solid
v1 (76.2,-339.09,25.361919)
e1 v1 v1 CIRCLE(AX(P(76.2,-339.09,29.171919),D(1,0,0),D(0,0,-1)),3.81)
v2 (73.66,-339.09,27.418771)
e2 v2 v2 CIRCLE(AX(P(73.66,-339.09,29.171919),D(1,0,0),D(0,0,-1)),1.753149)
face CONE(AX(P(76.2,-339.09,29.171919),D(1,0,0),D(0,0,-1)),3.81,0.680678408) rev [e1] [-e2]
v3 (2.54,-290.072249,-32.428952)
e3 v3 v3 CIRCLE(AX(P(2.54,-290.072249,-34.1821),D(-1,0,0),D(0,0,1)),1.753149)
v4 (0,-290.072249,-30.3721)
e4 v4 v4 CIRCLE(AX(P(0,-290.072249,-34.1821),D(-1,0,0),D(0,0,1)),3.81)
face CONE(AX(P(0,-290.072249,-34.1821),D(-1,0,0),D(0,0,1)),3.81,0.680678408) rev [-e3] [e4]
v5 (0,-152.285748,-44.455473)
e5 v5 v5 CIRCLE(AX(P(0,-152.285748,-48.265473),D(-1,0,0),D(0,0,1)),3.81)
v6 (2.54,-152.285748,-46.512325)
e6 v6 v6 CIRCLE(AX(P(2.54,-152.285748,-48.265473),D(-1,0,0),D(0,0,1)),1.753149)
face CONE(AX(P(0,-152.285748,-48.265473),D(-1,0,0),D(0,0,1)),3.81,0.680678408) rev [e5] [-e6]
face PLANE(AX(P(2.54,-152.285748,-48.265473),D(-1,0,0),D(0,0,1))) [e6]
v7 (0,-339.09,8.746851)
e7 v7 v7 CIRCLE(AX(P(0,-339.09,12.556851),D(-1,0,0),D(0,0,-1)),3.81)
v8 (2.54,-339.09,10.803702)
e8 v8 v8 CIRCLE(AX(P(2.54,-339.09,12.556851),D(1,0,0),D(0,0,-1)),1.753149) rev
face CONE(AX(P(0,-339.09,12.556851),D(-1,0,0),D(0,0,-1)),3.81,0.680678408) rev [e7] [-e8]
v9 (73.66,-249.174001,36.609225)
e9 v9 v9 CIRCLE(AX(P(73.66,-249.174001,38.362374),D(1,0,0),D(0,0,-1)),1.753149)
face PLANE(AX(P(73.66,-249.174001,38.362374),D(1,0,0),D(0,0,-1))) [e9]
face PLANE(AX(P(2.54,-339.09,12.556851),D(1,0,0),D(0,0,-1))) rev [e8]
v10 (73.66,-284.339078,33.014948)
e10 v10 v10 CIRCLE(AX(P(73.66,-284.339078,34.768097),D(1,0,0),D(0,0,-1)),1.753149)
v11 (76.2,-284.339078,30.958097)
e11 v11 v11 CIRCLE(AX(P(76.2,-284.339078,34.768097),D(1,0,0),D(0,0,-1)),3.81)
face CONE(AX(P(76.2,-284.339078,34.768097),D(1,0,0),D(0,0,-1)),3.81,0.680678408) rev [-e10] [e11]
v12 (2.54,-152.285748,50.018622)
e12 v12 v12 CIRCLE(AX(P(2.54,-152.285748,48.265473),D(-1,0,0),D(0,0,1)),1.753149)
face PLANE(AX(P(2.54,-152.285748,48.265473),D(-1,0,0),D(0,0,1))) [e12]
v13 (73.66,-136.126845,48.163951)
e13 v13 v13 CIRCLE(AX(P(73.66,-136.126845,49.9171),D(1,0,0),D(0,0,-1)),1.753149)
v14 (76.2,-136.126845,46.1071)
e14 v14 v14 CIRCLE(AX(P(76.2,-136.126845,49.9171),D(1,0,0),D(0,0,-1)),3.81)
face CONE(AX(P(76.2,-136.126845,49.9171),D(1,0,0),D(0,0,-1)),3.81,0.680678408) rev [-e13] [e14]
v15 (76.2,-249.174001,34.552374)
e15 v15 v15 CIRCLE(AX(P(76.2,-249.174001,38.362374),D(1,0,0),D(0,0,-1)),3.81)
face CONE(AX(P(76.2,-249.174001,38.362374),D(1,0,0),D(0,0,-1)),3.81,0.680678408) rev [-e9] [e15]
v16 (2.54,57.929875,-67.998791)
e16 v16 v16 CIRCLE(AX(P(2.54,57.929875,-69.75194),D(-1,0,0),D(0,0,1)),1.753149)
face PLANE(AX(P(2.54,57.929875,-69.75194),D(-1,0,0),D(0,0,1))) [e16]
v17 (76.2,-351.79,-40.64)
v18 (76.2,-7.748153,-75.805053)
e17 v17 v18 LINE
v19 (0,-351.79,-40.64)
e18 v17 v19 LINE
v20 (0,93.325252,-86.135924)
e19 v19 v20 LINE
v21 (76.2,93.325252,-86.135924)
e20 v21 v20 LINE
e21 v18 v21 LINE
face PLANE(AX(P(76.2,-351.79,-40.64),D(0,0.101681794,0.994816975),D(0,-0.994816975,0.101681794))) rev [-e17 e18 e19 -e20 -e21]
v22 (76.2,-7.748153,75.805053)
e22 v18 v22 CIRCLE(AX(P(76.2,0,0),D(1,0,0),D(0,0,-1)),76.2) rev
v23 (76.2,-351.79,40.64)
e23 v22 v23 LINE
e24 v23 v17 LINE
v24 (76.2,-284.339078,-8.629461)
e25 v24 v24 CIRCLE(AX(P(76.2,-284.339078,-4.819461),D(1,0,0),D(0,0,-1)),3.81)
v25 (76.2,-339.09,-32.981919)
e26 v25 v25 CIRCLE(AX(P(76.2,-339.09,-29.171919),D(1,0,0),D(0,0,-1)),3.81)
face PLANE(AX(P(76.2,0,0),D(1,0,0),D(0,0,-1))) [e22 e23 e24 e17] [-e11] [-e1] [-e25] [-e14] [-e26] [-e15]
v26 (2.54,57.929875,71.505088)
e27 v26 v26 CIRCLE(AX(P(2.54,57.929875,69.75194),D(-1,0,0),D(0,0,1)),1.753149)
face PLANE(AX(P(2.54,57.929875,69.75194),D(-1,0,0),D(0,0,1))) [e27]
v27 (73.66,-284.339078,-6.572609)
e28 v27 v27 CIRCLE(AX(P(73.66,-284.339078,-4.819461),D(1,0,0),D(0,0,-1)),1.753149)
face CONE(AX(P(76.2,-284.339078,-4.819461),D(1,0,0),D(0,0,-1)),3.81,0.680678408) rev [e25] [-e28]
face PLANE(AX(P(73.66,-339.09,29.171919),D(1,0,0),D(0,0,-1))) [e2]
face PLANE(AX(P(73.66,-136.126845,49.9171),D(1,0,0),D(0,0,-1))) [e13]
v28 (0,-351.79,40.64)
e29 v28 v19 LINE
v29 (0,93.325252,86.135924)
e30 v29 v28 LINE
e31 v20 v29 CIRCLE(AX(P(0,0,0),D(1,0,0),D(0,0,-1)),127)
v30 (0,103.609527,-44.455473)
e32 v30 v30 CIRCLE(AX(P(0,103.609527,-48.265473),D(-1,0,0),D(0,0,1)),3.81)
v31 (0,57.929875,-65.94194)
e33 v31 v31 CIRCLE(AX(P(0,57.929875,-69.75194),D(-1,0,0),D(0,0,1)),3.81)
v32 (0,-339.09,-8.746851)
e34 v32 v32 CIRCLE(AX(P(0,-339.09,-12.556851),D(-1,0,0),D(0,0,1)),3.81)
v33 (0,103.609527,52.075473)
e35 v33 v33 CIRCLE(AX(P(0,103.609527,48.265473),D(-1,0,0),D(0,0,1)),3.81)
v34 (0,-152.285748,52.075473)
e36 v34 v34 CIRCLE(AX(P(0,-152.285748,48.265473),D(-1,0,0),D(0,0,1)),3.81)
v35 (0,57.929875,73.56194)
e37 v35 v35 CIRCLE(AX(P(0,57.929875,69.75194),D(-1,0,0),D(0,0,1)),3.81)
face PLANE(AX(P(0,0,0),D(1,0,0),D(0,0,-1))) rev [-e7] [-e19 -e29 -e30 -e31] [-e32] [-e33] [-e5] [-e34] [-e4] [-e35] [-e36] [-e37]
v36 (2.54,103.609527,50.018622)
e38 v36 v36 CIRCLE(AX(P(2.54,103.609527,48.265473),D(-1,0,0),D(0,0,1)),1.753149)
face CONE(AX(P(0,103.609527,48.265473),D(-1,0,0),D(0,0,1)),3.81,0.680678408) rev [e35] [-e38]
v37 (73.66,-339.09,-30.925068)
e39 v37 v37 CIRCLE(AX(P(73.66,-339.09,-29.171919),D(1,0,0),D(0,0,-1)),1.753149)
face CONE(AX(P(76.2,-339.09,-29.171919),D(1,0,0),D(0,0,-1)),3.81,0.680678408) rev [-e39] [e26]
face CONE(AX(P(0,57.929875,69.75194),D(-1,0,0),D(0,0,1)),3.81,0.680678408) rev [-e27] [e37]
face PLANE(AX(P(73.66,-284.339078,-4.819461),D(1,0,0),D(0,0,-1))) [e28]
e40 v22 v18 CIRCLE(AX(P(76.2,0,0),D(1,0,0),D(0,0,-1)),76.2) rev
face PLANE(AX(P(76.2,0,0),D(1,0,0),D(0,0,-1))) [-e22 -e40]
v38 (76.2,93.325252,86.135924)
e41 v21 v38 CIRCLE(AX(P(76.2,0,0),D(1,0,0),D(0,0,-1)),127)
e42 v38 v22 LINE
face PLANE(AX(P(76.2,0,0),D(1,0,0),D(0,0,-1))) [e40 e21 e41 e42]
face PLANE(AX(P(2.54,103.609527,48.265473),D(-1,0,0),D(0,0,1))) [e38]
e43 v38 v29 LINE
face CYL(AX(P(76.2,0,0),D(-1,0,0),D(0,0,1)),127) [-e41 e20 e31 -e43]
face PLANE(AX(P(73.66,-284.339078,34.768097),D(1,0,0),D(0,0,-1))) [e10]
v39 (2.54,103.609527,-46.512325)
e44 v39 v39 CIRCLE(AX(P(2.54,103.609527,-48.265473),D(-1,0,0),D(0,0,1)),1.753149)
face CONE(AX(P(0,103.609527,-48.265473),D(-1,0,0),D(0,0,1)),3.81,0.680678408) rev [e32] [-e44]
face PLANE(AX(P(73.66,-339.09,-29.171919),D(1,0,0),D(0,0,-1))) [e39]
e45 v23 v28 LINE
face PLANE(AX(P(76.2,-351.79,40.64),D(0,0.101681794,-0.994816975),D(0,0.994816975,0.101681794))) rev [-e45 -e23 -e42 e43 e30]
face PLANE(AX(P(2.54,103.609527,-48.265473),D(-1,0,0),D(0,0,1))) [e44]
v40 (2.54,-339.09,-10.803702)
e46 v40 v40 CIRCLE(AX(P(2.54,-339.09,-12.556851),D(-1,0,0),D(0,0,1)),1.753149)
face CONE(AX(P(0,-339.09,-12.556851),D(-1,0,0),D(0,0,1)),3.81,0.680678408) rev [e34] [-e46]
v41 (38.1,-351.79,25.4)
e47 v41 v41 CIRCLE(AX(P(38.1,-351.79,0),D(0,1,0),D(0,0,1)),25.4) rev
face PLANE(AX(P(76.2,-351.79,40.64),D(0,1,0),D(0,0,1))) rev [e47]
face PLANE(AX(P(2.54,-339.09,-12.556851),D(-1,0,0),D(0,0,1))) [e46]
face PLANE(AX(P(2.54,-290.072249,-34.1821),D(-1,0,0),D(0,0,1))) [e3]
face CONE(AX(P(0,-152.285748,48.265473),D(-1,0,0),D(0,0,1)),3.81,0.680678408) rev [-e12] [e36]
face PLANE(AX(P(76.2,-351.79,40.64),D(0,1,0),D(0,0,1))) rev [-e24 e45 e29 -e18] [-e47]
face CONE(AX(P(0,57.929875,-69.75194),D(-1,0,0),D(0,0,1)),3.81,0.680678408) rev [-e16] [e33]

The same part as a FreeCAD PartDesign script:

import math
import FreeCAD as App
import Part
import Sketcher
from FreeCAD import Vector
Q = App.Units.Quantity

doc = App.newDocument("Part")
body = doc.addObject("PartDesign::Body", "Body")

sketch1 = body.newObject("Sketcher::SketchObject", "Sketch")
sketch1.AttachmentSupport = (doc.getObject("YZ_Plane"), [""])
sketch1.MapMode = "FlatFace"
sketch1.addGeometry([
    Part.LineSegment(Vector(93, 86, 0), Vector(-352, 41, 0)),
    Part.LineSegment(Vector(-352, 41, 0), Vector(-352, -41, 0)),
    Part.LineSegment(Vector(-352, -41, 0), Vector(93, -86, 0)),
    Part.ArcOfCircle(Part.Circle(Vector(0, 0, 0), Vector(0, 0, 1), 127), math.radians(-43), math.radians(43)),
], False)
sketch1.addConstraint([
    Sketcher.Constraint("Coincident", 0, 2, 1, 1),
    Sketcher.Constraint("Coincident", 1, 2, 2, 1),
    Sketcher.Constraint("Coincident", 2, 2, 3, 1),
    Sketcher.Constraint("Coincident", 3, 2, 0, 1),
    Sketcher.Constraint("Vertical", 1),
    Sketcher.Constraint("Coincident", 3, 3, -1, 1),
    Sketcher.Constraint("Vertical", 2, 2, 3, 2),
    Sketcher.Constraint("Equal", 0, 2),
    Sketcher.Constraint("Radius", 3, Q("5 in")),
    Sketcher.Constraint("DistanceY", 1, 2, 1, 1, Q("3.2 in")),
    Sketcher.Constraint("DistanceX", 0, 2, -1, 1, Q("13.85 in")),
    Sketcher.Constraint("DistanceX", -1, 1, 2, 2, 93.325252),
])
pad1 = body.newObject("PartDesign::Pad", "Pad")
pad1.Profile = sketch1
pad1.Length = Q("3 in")

sketch2 = body.newObject("Sketcher::SketchObject", "Sketch001")
sketch2.AttachmentSupport = (doc.getObject("YZ_Plane"), [""])
sketch2.MapMode = "FlatFace"
sketch2.AttachmentOffset = App.Placement(Vector(0, 0, 3 * 25.4), App.Rotation())
sketch2.addGeometry([
    Part.Circle(Vector(-136.1, 49.9, 0), Vector(0, 0, 1), 3.8),
    Part.Circle(Vector(-249.2, 38.4, 0), Vector(0, 0, 1), 3.8),
    Part.Circle(Vector(-284.3, 34.8, 0), Vector(0, 0, 1), 3.8),
    Part.Circle(Vector(-339.1, 29.2, 0), Vector(0, 0, 1), 3.8),
    Part.Circle(Vector(-339.1, -29.2, 0), Vector(0, 0, 1), 3.8),
    Part.Circle(Vector(-284.3, -4.8, 0), Vector(0, 0, 1), 3.8),
], False)
sketch2.addConstraint([
    Sketcher.Constraint("Equal", 0, 1),
    Sketcher.Constraint("Equal", 1, 2),
    Sketcher.Constraint("Equal", 2, 3),
    Sketcher.Constraint("Equal", 3, 4),
    Sketcher.Constraint("Equal", 4, 5),
    Sketcher.Constraint("Symmetric", 3, 3, 4, 3, -1),
    Sketcher.Constraint("Vertical", 2, 3, 5, 3),
    Sketcher.Constraint("Diameter", 0, Q("0.3 in")),
    Sketcher.Constraint("DistanceX", 1, 3, -1, 1, Q("9.8100001 in")),
    Sketcher.Constraint("DistanceX", 3, 3, -1, 1, Q("13.35 in")),
    Sketcher.Constraint("DistanceY", -1, 1, 0, 3, 49.9171),
    Sketcher.Constraint("DistanceY", -1, 1, 3, 3, 29.171919),
    Sketcher.Constraint("DistanceY", 5, 3, -1, 1, 4.819461),
    Sketcher.Constraint("DistanceX", 0, 3, -1, 1, 136.126845),
    Sketcher.Constraint("DistanceY", -1, 1, 1, 3, 38.362374),
    Sketcher.Constraint("DistanceX", 2, 3, -1, 1, 284.339078),
    Sketcher.Constraint("DistanceY", -1, 1, 2, 3, 34.768097),
])
pocket1 = body.newObject("PartDesign::Pocket", "Pocket")
pocket1.Profile = sketch2
pocket1.Length = Q("0.1 in")
pocket1.TaperAngle = -39

sketch3 = body.newObject("Sketcher::SketchObject", "Sketch002")
sketch3.AttachmentSupport = (doc.getObject("YZ_Plane"), [""])
sketch3.MapMode = "FlatFace"
sketch3.addGeometry([
    Part.Circle(Vector(-339.1, -12.6, 0), Vector(0, 0, 1), 3.8),
    Part.Circle(Vector(-339.1, 12.6, 0), Vector(0, 0, 1), 3.8),
    Part.Circle(Vector(-290.1, -34.2, 0), Vector(0, 0, 1), 3.8),
    Part.Circle(Vector(-152.3, -48.3, 0), Vector(0, 0, 1), 3.8),
    Part.Circle(Vector(57.9, -69.8, 0), Vector(0, 0, 1), 3.8),
    Part.Circle(Vector(103.6, -48.3, 0), Vector(0, 0, 1), 3.8),
    Part.Circle(Vector(103.6, 48.3, 0), Vector(0, 0, 1), 3.8),
    Part.Circle(Vector(57.9, 69.8, 0), Vector(0, 0, 1), 3.8),
    Part.Circle(Vector(-152.3, 48.3, 0), Vector(0, 0, 1), 3.8),
], False)
sketch3.addConstraint([
    Sketcher.Constraint("Equal", 0, 1),
    Sketcher.Constraint("Equal", 1, 2),
    Sketcher.Constraint("Equal", 2, 3),
    Sketcher.Constraint("Equal", 3, 4),
    Sketcher.Constraint("Equal", 4, 5),
    Sketcher.Constraint("Equal", 5, 6),
    Sketcher.Constraint("Equal", 6, 7),
    Sketcher.Constraint("Equal", 7, 8),
    Sketcher.Constraint("Symmetric", 0, 3, 1, 3, -1),
    Sketcher.Constraint("Symmetric", 5, 3, 6, 3, -1),
    Sketcher.Constraint("Symmetric", 4, 3, 7, 3, -1),
    Sketcher.Constraint("Symmetric", 3, 3, 8, 3, -1),
    Sketcher.Constraint("Horizontal", 3, 3, 5, 3),
    Sketcher.Constraint("Diameter", 0, Q("0.3 in")),
    Sketcher.Constraint("DistanceX", 0, 3, -1, 1, Q("13.35 in")),
    Sketcher.Constraint("DistanceY", 2, 3, -1, 1, 34.1821),
    Sketcher.Constraint("DistanceY", 0, 3, 1, 3, 25.113701),
    Sketcher.Constraint("DistanceX", 2, 3, 3, 3, 137.786501),
    Sketcher.Constraint("DistanceX", 2, 3, -1, 1, 290.072249),
    Sketcher.Constraint("DistanceY", 4, 3, -1, 1, 69.75194),
    Sketcher.Constraint("DistanceY", 3, 3, -1, 1, 48.265473),
    Sketcher.Constraint("DistanceX", -1, 1, 4, 3, 57.929875),
    Sketcher.Constraint("DistanceX", -1, 1, 5, 3, 103.609527),
])
pocket2 = body.newObject("PartDesign::Pocket", "Pocket001")
pocket2.Profile = sketch3
pocket2.Length = Q("0.1 in")
pocket2.Reversed = True
pocket2.TaperAngle = -39

doc.recompute()
